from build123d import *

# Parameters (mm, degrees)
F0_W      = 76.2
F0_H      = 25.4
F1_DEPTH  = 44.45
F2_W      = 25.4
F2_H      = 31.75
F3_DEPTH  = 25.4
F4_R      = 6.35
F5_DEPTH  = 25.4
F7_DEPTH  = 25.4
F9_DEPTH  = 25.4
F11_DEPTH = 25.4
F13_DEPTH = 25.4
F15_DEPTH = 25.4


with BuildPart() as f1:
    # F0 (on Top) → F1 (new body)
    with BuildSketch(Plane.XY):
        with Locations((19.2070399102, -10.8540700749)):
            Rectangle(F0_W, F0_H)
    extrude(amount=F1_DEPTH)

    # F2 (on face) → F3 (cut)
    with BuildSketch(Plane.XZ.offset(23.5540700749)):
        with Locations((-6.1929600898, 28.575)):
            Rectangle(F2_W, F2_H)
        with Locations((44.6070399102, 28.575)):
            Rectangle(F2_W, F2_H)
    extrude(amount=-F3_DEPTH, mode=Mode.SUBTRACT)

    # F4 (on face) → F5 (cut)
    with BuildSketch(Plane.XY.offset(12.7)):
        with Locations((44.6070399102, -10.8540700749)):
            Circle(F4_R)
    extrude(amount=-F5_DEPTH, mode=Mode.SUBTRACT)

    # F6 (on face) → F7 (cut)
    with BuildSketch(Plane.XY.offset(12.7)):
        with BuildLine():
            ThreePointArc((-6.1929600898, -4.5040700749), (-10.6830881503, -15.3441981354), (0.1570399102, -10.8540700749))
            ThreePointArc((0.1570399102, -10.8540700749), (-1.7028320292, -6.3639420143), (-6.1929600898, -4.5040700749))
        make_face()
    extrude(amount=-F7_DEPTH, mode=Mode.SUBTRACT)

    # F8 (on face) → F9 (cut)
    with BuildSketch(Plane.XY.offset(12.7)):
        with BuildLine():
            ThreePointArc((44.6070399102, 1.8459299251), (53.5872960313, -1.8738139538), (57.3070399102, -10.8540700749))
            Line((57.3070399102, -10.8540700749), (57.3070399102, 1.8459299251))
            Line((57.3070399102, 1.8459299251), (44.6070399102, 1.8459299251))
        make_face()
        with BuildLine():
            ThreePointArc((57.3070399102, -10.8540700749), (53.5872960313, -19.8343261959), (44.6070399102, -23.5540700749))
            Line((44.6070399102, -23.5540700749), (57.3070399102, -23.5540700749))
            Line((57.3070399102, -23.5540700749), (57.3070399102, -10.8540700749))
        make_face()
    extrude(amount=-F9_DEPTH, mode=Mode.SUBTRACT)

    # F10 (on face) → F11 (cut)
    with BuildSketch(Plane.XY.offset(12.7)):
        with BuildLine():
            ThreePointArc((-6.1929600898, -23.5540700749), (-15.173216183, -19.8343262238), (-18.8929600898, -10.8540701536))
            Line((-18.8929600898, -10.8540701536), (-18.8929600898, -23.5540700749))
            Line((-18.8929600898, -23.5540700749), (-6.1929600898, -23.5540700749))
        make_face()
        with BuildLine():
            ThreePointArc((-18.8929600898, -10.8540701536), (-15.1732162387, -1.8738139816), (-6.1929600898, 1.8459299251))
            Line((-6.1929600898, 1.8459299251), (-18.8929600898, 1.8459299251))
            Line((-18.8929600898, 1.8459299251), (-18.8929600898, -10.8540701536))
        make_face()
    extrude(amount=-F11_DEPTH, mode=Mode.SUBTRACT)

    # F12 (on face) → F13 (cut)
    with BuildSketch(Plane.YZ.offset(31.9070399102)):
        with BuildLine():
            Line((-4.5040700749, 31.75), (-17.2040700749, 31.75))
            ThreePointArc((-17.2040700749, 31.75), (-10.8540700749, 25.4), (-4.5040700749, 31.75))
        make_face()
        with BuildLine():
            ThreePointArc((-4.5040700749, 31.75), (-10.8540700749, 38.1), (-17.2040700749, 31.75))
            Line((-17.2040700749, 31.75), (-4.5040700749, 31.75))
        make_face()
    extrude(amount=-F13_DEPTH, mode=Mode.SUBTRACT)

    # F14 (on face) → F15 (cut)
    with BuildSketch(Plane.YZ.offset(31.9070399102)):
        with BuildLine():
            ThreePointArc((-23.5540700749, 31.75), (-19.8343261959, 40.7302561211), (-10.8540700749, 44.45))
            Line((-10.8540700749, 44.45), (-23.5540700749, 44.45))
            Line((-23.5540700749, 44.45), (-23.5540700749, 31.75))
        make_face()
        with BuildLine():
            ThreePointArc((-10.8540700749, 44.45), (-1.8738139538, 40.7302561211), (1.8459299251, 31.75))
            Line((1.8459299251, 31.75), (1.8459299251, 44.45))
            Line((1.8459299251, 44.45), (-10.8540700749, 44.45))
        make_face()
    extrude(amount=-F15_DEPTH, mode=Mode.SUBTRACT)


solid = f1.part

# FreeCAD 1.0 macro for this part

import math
import FreeCAD as App
import Part
import Sketcher
Q = App.Units.Quantity


def add_polygon(sketch, points):
    """Adds a closed chain of lines whose ends are joined by coincident constraints."""
    first, n = sketch.GeometryCount, len(points)
    for a, b in zip(points, points[1:] + points[:1]):
        sketch.addGeometry(Part.LineSegment(App.Vector(*a, 0), App.Vector(*b, 0)), False)
    for i in range(n):
        sketch.addConstraint(Sketcher.Constraint("Coincident", first + i, 2, first + (i + 1) % n, 1))

doc = App.newDocument("Part")
params = doc.addObject("Spreadsheet::Sheet", "Params")
for row, (alias, value) in enumerate([
    ("sketch1_width", "3 in"),
    ("sketch1_height", "1 in"),
    ("pad1_length", "1.75 in"),
    ("sketch2_width", "1 in"),
    ("sketch2_height", "1.25 in"),
    ("pocket1_length", "1 in"),
    ("sketch3_diameter", "0.5 in"),
    ("pocket2_length", "1 in"),
    ("sketch4_radius", "0.25 in"),
    ("pocket3_length", "1 in"),
    ("sketch5_radius", "0.5 in"),
    ("pocket4_length", "1 in"),
    ("sketch6_radius", "0.5 in"),
    ("pocket5_length", "1 in"),
    ("sketch7_diameter", "0.5 in"),
    ("pocket6_length", "1 in"),
    ("sketch8_radius", "0.5 in"),
    ("pocket7_length", "1 in"),
], start=1):
    params.set(f"A{row}", alias)
    params.set(f"B{row}", "=" + value)
    params.setAlias(f"B{row}", alias)

body = doc.addObject("PartDesign::Body", "Body")

# Sketch on XY plane
sketch1 = body.newObject("Sketcher::SketchObject", "Sketch")
sketch1.AttachmentSupport = (doc.getObject("XY_Plane"), [""])
sketch1.MapMode = "FlatFace"
add_polygon(sketch1, [(-19, 2), (-19, -24), (57, -24), (57, 2)])  # lines 0-3
sketch1.addConstraint(Sketcher.Constraint("Vertical", 0))
sketch1.addConstraint(Sketcher.Constraint("Horizontal", 1))
sketch1.addConstraint(Sketcher.Constraint("Vertical", 2))
sketch1.addConstraint(Sketcher.Constraint("Horizontal", 3))
sketch1.addConstraint(Sketcher.Constraint("DistanceX", 1, 1, 1, 2, Q("3 in")))
sketch1.addConstraint(Sketcher.Constraint("DistanceY", 0, 2, 0, 1, Q("1 in")))
sketch1.addConstraint(Sketcher.Constraint("DistanceX", 0, 2, -1, 1, Q("18.89296 mm")))
sketch1.addConstraint(Sketcher.Constraint("DistanceY", 0, 2, -1, 1, Q("23.55407 mm")))
sketch1.setExpression("Constraints[8]", "Params.sketch1_width")
sketch1.setExpression("Constraints[9]", "Params.sketch1_height")
pad1 = body.newObject("PartDesign::Pad", "Pad")
pad1.Profile = sketch1
pad1.setExpression("Length", "Params.pad1_length")

# Sketch on XZ plane
sketch2 = body.newObject("Sketcher::SketchObject", "Sketch001")
sketch2.AttachmentSupport = (doc.getObject("XZ_Plane"), [""])
sketch2.MapMode = "FlatFace"
sketch2.AttachmentOffset = App.Placement(App.Vector(0, 0, 23.55407), App.Rotation())
add_polygon(sketch2, [(-19, 44), (-19, 13), (7, 13), (7, 44)])  # lines 0-3
add_polygon(sketch2, [(32, 44), (32, 13), (57, 13), (57, 44)])  # lines 4-7
sketch2.addConstraint(Sketcher.Constraint("Vertical", 0))
sketch2.addConstraint(Sketcher.Constraint("Horizontal", 1))
sketch2.addConstraint(Sketcher.Constraint("Vertical", 2))
sketch2.addConstraint(Sketcher.Constraint("Horizontal", 3))
sketch2.addConstraint(Sketcher.Constraint("Vertical", 4))
sketch2.addConstraint(Sketcher.Constraint("Horizontal", 5))
sketch2.addConstraint(Sketcher.Constraint("Vertical", 6))
sketch2.addConstraint(Sketcher.Constraint("Horizontal", 7))
sketch2.addConstraint(Sketcher.Constraint("Horizontal", 1, 2, 4, 2))
sketch2.addConstraint(Sketcher.Constraint("Horizontal", 3, 2, 6, 2))
sketch2.addConstraint(Sketcher.Constraint("Equal", 3, 5))
sketch2.addConstraint(Sketcher.Constraint("DistanceX", 1, 1, 1, 2, Q("1 in")))
sketch2.addConstraint(Sketcher.Constraint("DistanceX", 1, 2, 4, 2, Q("1 in")))
sketch2.addConstraint(Sketcher.Constraint("DistanceY", 0, 2, 0, 1, Q("1.25 in")))
sketch2.addConstraint(Sketcher.Constraint("DistanceY", -1, 1, 0, 2, Q("0.5 in")))
sketch2.addConstraint(Sketcher.Constraint("DistanceX", 0, 2, -1, 1, Q("18.89296 mm")))
sketch2.setExpression("Constraints[19]", "Params.sketch2_width")
sketch2.setExpression("Constraints[21]", "Params.sketch2_height")
pocket1 = body.newObject("PartDesign::Pocket", "Pocket")
pocket1.Profile = sketch2
pocket1.setExpression("Length", "Params.pocket1_length")

# Sketch on XY plane
sketch3 = body.newObject("Sketcher::SketchObject", "Sketch002")
sketch3.AttachmentSupport = (doc.getObject("XY_Plane"), [""])
sketch3.MapMode = "FlatFace"
sketch3.AttachmentOffset = App.Placement(App.Vector(0, 0, 0.5 * 25.4), App.Rotation())
sketch3.addGeometry(Part.Circle(App.Vector(45, -11, 0), App.Vector(0, 0, 1), 6), False)
sketch3.addConstraint(Sketcher.Constraint("Diameter", 0, Q("0.5 in")))
sketch3.addConstraint(Sketcher.Constraint("DistanceX", -1, 1, 0, 3, Q("44.60704 mm")))
sketch3.addConstraint(Sketcher.Constraint("DistanceY", 0, 3, -1, 1, Q("10.85407 mm")))
sketch3.setExpression("Constraints[0]", "Params.sketch3_diameter")
pocket2 = body.newObject("PartDesign::Pocket", "Pocket001")
pocket2.Profile = sketch3
pocket2.setExpression("Length", "Params.pocket2_length")

# Sketch on XY plane
sketch4 = body.newObject("Sketcher::SketchObject", "Sketch003")
sketch4.AttachmentSupport = (doc.getObject("XY_Plane"), [""])
sketch4.MapMode = "FlatFace"
sketch4.AttachmentOffset = App.Placement(App.Vector(0, 0, 0.5 * 25.4), App.Rotation())
sketch4.addGeometry(Part.ArcOfCircle(Part.Circle(App.Vector(-6, -11, 0), App.Vector(0, 0, 1), 6), math.radians(90), math.radians(360)), False)
sketch4.addGeometry(Part.ArcOfCircle(Part.Circle(App.Vector(-6, -11, 0), App.Vector(0, 0, 1), 6), math.radians(0), math.radians(90)), False)
sketch4.addConstraint(Sketcher.Constraint("Tangent", 0, 1, 1, 2))
sketch4.addConstraint(Sketcher.Constraint("Coincident", 1, 1, 0, 2))
sketch4.addConstraint(Sketcher.Constraint("Horizontal", 0, 3, 1, 1))
sketch4.addConstraint(Sketcher.Constraint("Vertical", 1, 3, 0, 1))
sketch4.addConstraint(Sketcher.Constraint("Radius", 0, Q("0.25 in")))
sketch4.addConstraint(Sketcher.Constraint("DistanceX", 0, 3, -1, 1, Q("6.19296 mm")))
sketch4.addConstraint(Sketcher.Constraint("DistanceY", 0, 3, -1, 1, Q("10.85407 mm")))
sketch4.setExpression("Constraints[4]", "Params.sketch4_radius")
pocket3 = body.newObject("PartDesign::Pocket", "Pocket002")
pocket3.Profile = sketch4
pocket3.setExpression("Length", "Params.pocket3_length")

# Sketch on XY plane
sketch5 = body.newObject("Sketcher::SketchObject", "Sketch004")
sketch5.AttachmentSupport = (doc.getObject("XY_Plane"), [""])
sketch5.MapMode = "FlatFace"
sketch5.AttachmentOffset = App.Placement(App.Vector(0, 0, 0.5 * 25.4), App.Rotation())
sketch5.addGeometry(Part.ArcOfCircle(Part.Circle(App.Vector(45, -11, 0), App.Vector(0, 0, 1), 13), math.radians(0), math.radians(90)), False)
sketch5.addGeometry(Part.LineSegment(App.Vector(57, -11, 0), App.Vector(57, 2, 0)), False)
sketch5.addGeometry(Part.LineSegment(App.Vector(57, 2, 0), App.Vector(45, 2, 0)), False)
sketch5.addGeometry(Part.ArcOfCircle(Part.Circle(App.Vector(45, -11, 0), App.Vector(0, 0, 1), 13), math.radians(-90), math.radians(0)), False)
sketch5.addGeometry(Part.LineSegment(App.Vector(45, -24, 0), App.Vector(57, -24, 0)), False)
sketch5.addGeometry(Part.LineSegment(App.Vector(57, -24, 0), App.Vector(57, -11, 0)), False)
sketch5.addConstraint(Sketcher.Constraint("Tangent", 0, 1, 1, 1))
sketch5.addConstraint(Sketcher.Constraint("Coincident", 1, 2, 2, 1))
sketch5.addConstraint(Sketcher.Constraint("Tangent", 2, 2, 0, 2))
sketch5.addConstraint(Sketcher.Constraint("Tangent", 3, 1, 4, 1))
sketch5.addConstraint(Sketcher.Constraint("Coincident", 4, 2, 5, 1))
sketch5.addConstraint(Sketcher.Constraint("Tangent", 5, 2, 3, 2))
sketch5.addConstraint(Sketcher.Constraint("Vertical", 1))
sketch5.addConstraint(Sketcher.Constraint("Horizontal", 2))
sketch5.addConstraint(Sketcher.Constraint("Horizontal", 4))
sketch5.addConstraint(Sketcher.Constraint("Vertical", 5))
sketch5.addConstraint(Sketcher.Constraint("Coincident", 3, 3, 0, 3))
sketch5.addConstraint(Sketcher.Constraint("Equal", 0, 3))
sketch5.addConstraint(Sketcher.Constraint("Radius", 0, Q("0.5 in")))
sketch5.addConstraint(Sketcher.Constraint("DistanceX", -1, 1, 0, 3, Q("44.60704 mm")))
sketch5.addConstraint(Sketcher.Constraint("DistanceY", 0, 3, -1, 1, Q("10.85407 mm")))
sketch5.setExpression("Constraints[12]", "Params.sketch5_radius")
pocket4 = body.newObject("PartDesign::Pocket", "Pocket003")
pocket4.Profile = sketch5
pocket4.setExpression("Length", "Params.pocket4_length")

# Sketch on XY plane
sketch6 = body.newObject("Sketcher::SketchObject", "Sketch005")
sketch6.AttachmentSupport = (doc.getObject("XY_Plane"), [""])
sketch6.MapMode = "FlatFace"
sketch6.AttachmentOffset = App.Placement(App.Vector(0, 0, 0.5 * 25.4), App.Rotation())
sketch6.addGeometry(Part.ArcOfCircle(Part.Circle(App.Vector(-6, -11, 0), App.Vector(0, 0, 1), 13), math.radians(-180), math.radians(-90)), False)
sketch6.addGeometry(Part.LineSegment(App.Vector(-19, -11, 0), App.Vector(-19, -24, 0)), False)
sketch6.addGeometry(Part.LineSegment(App.Vector(-19, -24, 0), App.Vector(-6, -24, 0)), False)
sketch6.addGeometry(Part.ArcOfCircle(Part.Circle(App.Vector(-6, -11, 0), App.Vector(0, 0, 1), 13), math.radians(90), math.radians(180)), False)
sketch6.addGeometry(Part.LineSegment(App.Vector(-6, 2, 0), App.Vector(-19, 2, 0)), False)
sketch6.addGeometry(Part.LineSegment(App.Vector(-19, 2, 0), App.Vector(-19, -11, 0)), False)
sketch6.addConstraint(Sketcher.Constraint("Tangent", 0, 1, 1, 1))
sketch6.addConstraint(Sketcher.Constraint("Coincident", 1, 2, 2, 1))
sketch6.addConstraint(Sketcher.Constraint("Tangent", 2, 2, 0, 2))
sketch6.addConstraint(Sketcher.Constraint("Tangent", 3, 1, 4, 1))
sketch6.addConstraint(Sketcher.Constraint("Coincident", 4, 2, 5, 1))
sketch6.addConstraint(Sketcher.Constraint("Tangent", 5, 2, 3, 2))
sketch6.addConstraint(Sketcher.Constraint("Vertical", 1))
sketch6.addConstraint(Sketcher.Constraint("Horizontal", 2))
sketch6.addConstraint(Sketcher.Constraint("Horizontal", 4))
sketch6.addConstraint(Sketcher.Constraint("Vertical", 5))
sketch6.addConstraint(Sketcher.Constraint("Coincident", 3, 3, 0, 3))
sketch6.addConstraint(Sketcher.Constraint("Equal", 0, 3))
sketch6.addConstraint(Sketcher.Constraint("Radius", 0, Q("0.5 in")))
sketch6.addConstraint(Sketcher.Constraint("DistanceX", 0, 3, -1, 1, Q("6.19296 mm")))
sketch6.addConstraint(Sketcher.Constraint("DistanceY", 0, 3, -1, 1, Q("10.85407 mm")))
sketch6.setExpression("Constraints[12]", "Params.sketch6_radius")
pocket5 = body.newObject("PartDesign::Pocket", "Pocket004")
pocket5.Profile = sketch6
pocket5.setExpression("Length", "Params.pocket5_length")

# Sketch on YZ plane
sketch7 = body.newObject("Sketcher::SketchObject", "Sketch006")
sketch7.AttachmentSupport = (doc.getObject("YZ_Plane"), [""])
sketch7.MapMode = "FlatFace"
sketch7.AttachmentOffset = App.Placement(App.Vector(0, 0, 31.90704), App.Rotation())
sketch7.addGeometry(Part.Circle(App.Vector(-11, 32, 0), App.Vector(0, 0, 1), 6), False)
sketch7.addConstraint(Sketcher.Constraint("Diameter", 0, Q("0.5 in")))
sketch7.addConstraint(Sketcher.Constraint("DistanceY", -1, 1, 0, 3, Q("1.25 in")))
sketch7.addConstraint(Sketcher.Constraint("DistanceX", 0, 3, -1, 1, Q("10.85407 mm")))
sketch7.setExpression("Constraints[0]", "Params.sketch7_diameter")
pocket6 = body.newObject("PartDesign::Pocket", "Pocket005")
pocket6.Profile = sketch7
pocket6.setExpression("Length", "Params.pocket6_length")

# Sketch on YZ plane
sketch8 = body.newObject("Sketcher::SketchObject", "Sketch007")
sketch8.AttachmentSupport = (doc.getObject("YZ_Plane"), [""])
sketch8.MapMode = "FlatFace"
sketch8.AttachmentOffset = App.Placement(App.Vector(0, 0, 31.90704), App.Rotation())
sketch8.addGeometry(Part.ArcOfCircle(Part.Circle(App.Vector(-11, 32, 0), App.Vector(0, 0, 1), 13), math.radians(90), math.radians(180)), False)
sketch8.addGeometry(Part.LineSegment(App.Vector(-11, 44, 0), App.Vector(-24, 44, 0)), False)
sketch8.addGeometry(Part.LineSegment(App.Vector(-24, 44, 0), App.Vector(-24, 32, 0)), False)
sketch8.addGeometry(Part.ArcOfCircle(Part.Circle(App.Vector(-11, 32, 0), App.Vector(0, 0, 1), 13), math.radians(0), math.radians(90)), False)
sketch8.addGeometry(Part.LineSegment(App.Vector(2, 32, 0), App.Vector(2, 44, 0)), False)
sketch8.addGeometry(Part.LineSegment(App.Vector(2, 44, 0), App.Vector(-11, 44, 0)), False)
sketch8.addConstraint(Sketcher.Constraint("Tangent", 0, 1, 1, 1))
sketch8.addConstraint(Sketcher.Constraint("Coincident", 1, 2, 2, 1))
sketch8.addConstraint(Sketcher.Constraint("Tangent", 2, 2, 0, 2))
sketch8.addConstraint(Sketcher.Constraint("Tangent", 3, 1, 4, 1))
sketch8.addConstraint(Sketcher.Constraint("Coincident", 4, 2, 5, 1))
sketch8.addConstraint(Sketcher.Constraint("Tangent", 5, 2, 3, 2))
sketch8.addConstraint(Sketcher.Constraint("Horizontal", 1))
sketch8.addConstraint(Sketcher.Constraint("Vertical", 2))
sketch8.addConstraint(Sketcher.Constraint("Vertical", 4))
sketch8.addConstraint(Sketcher.Constraint("Horizontal", 5))
sketch8.addConstraint(Sketcher.Constraint("Coincident", 3, 3, 0, 3))
sketch8.addConstraint(Sketcher.Constraint("Equal", 0, 3))
sketch8.addConstraint(Sketcher.Constraint("Radius", 0, Q("0.5 in")))
sketch8.addConstraint(Sketcher.Constraint("DistanceY", -1, 1, 0, 3, Q("1.25 in")))
sketch8.addConstraint(Sketcher.Constraint("DistanceX", 0, 3, -1, 1, Q("10.85407 mm")))
sketch8.setExpression("Constraints[12]", "Params.sketch8_radius")
pocket7 = body.newObject("PartDesign::Pocket", "Pocket006")
pocket7.Profile = sketch8
pocket7.setExpression("Length", "Params.pocket7_length")

doc.recompute()
